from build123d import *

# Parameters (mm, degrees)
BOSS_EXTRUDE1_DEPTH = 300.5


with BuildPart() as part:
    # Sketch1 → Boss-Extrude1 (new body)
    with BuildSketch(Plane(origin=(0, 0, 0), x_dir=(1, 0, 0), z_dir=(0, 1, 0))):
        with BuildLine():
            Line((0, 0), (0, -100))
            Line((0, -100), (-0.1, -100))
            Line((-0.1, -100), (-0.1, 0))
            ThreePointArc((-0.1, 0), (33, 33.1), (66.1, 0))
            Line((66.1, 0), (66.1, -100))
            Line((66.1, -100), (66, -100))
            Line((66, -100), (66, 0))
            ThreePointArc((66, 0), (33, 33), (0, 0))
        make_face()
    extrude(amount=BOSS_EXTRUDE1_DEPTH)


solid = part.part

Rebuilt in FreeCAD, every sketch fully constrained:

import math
import FreeCAD as App
import Part
import Sketcher

doc = App.newDocument("Part")
params = doc.addObject("Spreadsheet::Sheet", "Params")
for row, (alias, value) in enumerate([
    ("sketch1_radius", "33 mm"),
    ("sketch1_radius2", "33.1 mm"),
    ("sketch1_height", "100 mm"),
    ("pad1_length", "300.5 mm"),
], start=1):
    params.set(f"A{row}", alias)
    params.set(f"B{row}", "=" + value)
    params.setAlias(f"B{row}", alias)

body = doc.addObject("PartDesign::Body", "Body")

# Sketch on XZ plane
sketch1 = body.newObject("Sketcher::SketchObject", "Sketch")
sketch1.AttachmentSupport = (doc.getObject("XZ_Plane"), [""])
sketch1.MapMode = "FlatFace"
sketch1.addGeometry(Part.LineSegment(App.Vector(0, 100, 0), App.Vector(0, 0, 0)), False)
sketch1.addGeometry(Part.ArcOfCircle(Part.Circle(App.Vector(33, 0, 0), App.Vector(0, 0, 1), 33), math.radians(180), math.radians(360)), False)
sketch1.addGeometry(Part.LineSegment(App.Vector(66, 0, 0), App.Vector(66, 100, 0)), False)
sketch1.addGeometry(Part.LineSegment(App.Vector(66, 100, 0), App.Vector(66.1, 100, 0)), False)
sketch1.addGeometry(Part.LineSegment(App.Vector(66.1, 100, 0), App.Vector(66.1, 0, 0)), False)
sketch1.addGeometry(Part.ArcOfCircle(Part.Circle(App.Vector(33, 0, 0), App.Vector(0, 0, 1), 33.1), math.radians(180), math.radians(360)), False)
sketch1.addGeometry(Part.LineSegment(App.Vector(-0.1, 0, 0), App.Vector(-0.1, 100, 0)), False)
sketch1.addGeometry(Part.LineSegment(App.Vector(-0.1, 100, 0), App.Vector(0, 100, 0)), False)
sketch1.addConstraint(Sketcher.Constraint("Tangent", 0, 2, 1, 1))
sketch1.addConstraint(Sketcher.Constraint("Tangent", 1, 2, 2, 1))
sketch1.addConstraint(Sketcher.Constraint("Coincident", 2, 2, 3, 1))
sketch1.addConstraint(Sketcher.Constraint("Coincident", 3, 2, 4, 1))
sketch1.addConstraint(Sketcher.Constraint("Tangent", 4, 2, 5, 2))
sketch1.addConstraint(Sketcher.Constraint("Tangent", 5, 1, 6, 1))
sketch1.addConstraint(Sketcher.Constraint("Coincident", 6, 2, 7, 1))
sketch1.addConstraint(Sketcher.Constraint("Coincident", 7, 2, 0, 1))
sketch1.addConstraint(Sketcher.Constraint("Vertical", 0))
sketch1.addConstraint(Sketcher.Constraint("Vertical", 2))
sketch1.addConstraint(Sketcher.Constraint("Horizontal", 3))
sketch1.addConstraint(Sketcher.Constraint("Vertical", 4))
sketch1.addConstraint(Sketcher.Constraint("Vertical", 6))
sketch1.addConstraint(Sketcher.Constraint("Horizontal", 7))
sketch1.addConstraint(Sketcher.Constraint("Coincident", 0, 2, -1, 1))
sketch1.addConstraint(Sketcher.Constraint("Coincident", 5, 3, 1, 3))
sketch1.addConstraint(Sketcher.Constraint("Horizontal", 3, 2, 6, 2))
sketch1.addConstraint(Sketcher.Constraint("Radius", 1, 33.0))
sketch1.addConstraint(Sketcher.Constraint("Radius", 5, 33.1))
sketch1.addConstraint(Sketcher.Constraint("DistanceY", 0, 2, 0, 1, 100.0))
sketch1.setExpression("Constraints[17]", "Params.sketch1_radius")
sketch1.setExpression("Constraints[18]", "Params.sketch1_radius2")
sketch1.setExpression("Constraints[19]", "Params.sketch1_height")
pad1 = body.newObject("PartDesign::Pad", "Pad")
pad1.Profile = sketch1
pad1.setExpression("Length", "Params.pad1_length")
pad1.Reversed = True

doc.recompute()
